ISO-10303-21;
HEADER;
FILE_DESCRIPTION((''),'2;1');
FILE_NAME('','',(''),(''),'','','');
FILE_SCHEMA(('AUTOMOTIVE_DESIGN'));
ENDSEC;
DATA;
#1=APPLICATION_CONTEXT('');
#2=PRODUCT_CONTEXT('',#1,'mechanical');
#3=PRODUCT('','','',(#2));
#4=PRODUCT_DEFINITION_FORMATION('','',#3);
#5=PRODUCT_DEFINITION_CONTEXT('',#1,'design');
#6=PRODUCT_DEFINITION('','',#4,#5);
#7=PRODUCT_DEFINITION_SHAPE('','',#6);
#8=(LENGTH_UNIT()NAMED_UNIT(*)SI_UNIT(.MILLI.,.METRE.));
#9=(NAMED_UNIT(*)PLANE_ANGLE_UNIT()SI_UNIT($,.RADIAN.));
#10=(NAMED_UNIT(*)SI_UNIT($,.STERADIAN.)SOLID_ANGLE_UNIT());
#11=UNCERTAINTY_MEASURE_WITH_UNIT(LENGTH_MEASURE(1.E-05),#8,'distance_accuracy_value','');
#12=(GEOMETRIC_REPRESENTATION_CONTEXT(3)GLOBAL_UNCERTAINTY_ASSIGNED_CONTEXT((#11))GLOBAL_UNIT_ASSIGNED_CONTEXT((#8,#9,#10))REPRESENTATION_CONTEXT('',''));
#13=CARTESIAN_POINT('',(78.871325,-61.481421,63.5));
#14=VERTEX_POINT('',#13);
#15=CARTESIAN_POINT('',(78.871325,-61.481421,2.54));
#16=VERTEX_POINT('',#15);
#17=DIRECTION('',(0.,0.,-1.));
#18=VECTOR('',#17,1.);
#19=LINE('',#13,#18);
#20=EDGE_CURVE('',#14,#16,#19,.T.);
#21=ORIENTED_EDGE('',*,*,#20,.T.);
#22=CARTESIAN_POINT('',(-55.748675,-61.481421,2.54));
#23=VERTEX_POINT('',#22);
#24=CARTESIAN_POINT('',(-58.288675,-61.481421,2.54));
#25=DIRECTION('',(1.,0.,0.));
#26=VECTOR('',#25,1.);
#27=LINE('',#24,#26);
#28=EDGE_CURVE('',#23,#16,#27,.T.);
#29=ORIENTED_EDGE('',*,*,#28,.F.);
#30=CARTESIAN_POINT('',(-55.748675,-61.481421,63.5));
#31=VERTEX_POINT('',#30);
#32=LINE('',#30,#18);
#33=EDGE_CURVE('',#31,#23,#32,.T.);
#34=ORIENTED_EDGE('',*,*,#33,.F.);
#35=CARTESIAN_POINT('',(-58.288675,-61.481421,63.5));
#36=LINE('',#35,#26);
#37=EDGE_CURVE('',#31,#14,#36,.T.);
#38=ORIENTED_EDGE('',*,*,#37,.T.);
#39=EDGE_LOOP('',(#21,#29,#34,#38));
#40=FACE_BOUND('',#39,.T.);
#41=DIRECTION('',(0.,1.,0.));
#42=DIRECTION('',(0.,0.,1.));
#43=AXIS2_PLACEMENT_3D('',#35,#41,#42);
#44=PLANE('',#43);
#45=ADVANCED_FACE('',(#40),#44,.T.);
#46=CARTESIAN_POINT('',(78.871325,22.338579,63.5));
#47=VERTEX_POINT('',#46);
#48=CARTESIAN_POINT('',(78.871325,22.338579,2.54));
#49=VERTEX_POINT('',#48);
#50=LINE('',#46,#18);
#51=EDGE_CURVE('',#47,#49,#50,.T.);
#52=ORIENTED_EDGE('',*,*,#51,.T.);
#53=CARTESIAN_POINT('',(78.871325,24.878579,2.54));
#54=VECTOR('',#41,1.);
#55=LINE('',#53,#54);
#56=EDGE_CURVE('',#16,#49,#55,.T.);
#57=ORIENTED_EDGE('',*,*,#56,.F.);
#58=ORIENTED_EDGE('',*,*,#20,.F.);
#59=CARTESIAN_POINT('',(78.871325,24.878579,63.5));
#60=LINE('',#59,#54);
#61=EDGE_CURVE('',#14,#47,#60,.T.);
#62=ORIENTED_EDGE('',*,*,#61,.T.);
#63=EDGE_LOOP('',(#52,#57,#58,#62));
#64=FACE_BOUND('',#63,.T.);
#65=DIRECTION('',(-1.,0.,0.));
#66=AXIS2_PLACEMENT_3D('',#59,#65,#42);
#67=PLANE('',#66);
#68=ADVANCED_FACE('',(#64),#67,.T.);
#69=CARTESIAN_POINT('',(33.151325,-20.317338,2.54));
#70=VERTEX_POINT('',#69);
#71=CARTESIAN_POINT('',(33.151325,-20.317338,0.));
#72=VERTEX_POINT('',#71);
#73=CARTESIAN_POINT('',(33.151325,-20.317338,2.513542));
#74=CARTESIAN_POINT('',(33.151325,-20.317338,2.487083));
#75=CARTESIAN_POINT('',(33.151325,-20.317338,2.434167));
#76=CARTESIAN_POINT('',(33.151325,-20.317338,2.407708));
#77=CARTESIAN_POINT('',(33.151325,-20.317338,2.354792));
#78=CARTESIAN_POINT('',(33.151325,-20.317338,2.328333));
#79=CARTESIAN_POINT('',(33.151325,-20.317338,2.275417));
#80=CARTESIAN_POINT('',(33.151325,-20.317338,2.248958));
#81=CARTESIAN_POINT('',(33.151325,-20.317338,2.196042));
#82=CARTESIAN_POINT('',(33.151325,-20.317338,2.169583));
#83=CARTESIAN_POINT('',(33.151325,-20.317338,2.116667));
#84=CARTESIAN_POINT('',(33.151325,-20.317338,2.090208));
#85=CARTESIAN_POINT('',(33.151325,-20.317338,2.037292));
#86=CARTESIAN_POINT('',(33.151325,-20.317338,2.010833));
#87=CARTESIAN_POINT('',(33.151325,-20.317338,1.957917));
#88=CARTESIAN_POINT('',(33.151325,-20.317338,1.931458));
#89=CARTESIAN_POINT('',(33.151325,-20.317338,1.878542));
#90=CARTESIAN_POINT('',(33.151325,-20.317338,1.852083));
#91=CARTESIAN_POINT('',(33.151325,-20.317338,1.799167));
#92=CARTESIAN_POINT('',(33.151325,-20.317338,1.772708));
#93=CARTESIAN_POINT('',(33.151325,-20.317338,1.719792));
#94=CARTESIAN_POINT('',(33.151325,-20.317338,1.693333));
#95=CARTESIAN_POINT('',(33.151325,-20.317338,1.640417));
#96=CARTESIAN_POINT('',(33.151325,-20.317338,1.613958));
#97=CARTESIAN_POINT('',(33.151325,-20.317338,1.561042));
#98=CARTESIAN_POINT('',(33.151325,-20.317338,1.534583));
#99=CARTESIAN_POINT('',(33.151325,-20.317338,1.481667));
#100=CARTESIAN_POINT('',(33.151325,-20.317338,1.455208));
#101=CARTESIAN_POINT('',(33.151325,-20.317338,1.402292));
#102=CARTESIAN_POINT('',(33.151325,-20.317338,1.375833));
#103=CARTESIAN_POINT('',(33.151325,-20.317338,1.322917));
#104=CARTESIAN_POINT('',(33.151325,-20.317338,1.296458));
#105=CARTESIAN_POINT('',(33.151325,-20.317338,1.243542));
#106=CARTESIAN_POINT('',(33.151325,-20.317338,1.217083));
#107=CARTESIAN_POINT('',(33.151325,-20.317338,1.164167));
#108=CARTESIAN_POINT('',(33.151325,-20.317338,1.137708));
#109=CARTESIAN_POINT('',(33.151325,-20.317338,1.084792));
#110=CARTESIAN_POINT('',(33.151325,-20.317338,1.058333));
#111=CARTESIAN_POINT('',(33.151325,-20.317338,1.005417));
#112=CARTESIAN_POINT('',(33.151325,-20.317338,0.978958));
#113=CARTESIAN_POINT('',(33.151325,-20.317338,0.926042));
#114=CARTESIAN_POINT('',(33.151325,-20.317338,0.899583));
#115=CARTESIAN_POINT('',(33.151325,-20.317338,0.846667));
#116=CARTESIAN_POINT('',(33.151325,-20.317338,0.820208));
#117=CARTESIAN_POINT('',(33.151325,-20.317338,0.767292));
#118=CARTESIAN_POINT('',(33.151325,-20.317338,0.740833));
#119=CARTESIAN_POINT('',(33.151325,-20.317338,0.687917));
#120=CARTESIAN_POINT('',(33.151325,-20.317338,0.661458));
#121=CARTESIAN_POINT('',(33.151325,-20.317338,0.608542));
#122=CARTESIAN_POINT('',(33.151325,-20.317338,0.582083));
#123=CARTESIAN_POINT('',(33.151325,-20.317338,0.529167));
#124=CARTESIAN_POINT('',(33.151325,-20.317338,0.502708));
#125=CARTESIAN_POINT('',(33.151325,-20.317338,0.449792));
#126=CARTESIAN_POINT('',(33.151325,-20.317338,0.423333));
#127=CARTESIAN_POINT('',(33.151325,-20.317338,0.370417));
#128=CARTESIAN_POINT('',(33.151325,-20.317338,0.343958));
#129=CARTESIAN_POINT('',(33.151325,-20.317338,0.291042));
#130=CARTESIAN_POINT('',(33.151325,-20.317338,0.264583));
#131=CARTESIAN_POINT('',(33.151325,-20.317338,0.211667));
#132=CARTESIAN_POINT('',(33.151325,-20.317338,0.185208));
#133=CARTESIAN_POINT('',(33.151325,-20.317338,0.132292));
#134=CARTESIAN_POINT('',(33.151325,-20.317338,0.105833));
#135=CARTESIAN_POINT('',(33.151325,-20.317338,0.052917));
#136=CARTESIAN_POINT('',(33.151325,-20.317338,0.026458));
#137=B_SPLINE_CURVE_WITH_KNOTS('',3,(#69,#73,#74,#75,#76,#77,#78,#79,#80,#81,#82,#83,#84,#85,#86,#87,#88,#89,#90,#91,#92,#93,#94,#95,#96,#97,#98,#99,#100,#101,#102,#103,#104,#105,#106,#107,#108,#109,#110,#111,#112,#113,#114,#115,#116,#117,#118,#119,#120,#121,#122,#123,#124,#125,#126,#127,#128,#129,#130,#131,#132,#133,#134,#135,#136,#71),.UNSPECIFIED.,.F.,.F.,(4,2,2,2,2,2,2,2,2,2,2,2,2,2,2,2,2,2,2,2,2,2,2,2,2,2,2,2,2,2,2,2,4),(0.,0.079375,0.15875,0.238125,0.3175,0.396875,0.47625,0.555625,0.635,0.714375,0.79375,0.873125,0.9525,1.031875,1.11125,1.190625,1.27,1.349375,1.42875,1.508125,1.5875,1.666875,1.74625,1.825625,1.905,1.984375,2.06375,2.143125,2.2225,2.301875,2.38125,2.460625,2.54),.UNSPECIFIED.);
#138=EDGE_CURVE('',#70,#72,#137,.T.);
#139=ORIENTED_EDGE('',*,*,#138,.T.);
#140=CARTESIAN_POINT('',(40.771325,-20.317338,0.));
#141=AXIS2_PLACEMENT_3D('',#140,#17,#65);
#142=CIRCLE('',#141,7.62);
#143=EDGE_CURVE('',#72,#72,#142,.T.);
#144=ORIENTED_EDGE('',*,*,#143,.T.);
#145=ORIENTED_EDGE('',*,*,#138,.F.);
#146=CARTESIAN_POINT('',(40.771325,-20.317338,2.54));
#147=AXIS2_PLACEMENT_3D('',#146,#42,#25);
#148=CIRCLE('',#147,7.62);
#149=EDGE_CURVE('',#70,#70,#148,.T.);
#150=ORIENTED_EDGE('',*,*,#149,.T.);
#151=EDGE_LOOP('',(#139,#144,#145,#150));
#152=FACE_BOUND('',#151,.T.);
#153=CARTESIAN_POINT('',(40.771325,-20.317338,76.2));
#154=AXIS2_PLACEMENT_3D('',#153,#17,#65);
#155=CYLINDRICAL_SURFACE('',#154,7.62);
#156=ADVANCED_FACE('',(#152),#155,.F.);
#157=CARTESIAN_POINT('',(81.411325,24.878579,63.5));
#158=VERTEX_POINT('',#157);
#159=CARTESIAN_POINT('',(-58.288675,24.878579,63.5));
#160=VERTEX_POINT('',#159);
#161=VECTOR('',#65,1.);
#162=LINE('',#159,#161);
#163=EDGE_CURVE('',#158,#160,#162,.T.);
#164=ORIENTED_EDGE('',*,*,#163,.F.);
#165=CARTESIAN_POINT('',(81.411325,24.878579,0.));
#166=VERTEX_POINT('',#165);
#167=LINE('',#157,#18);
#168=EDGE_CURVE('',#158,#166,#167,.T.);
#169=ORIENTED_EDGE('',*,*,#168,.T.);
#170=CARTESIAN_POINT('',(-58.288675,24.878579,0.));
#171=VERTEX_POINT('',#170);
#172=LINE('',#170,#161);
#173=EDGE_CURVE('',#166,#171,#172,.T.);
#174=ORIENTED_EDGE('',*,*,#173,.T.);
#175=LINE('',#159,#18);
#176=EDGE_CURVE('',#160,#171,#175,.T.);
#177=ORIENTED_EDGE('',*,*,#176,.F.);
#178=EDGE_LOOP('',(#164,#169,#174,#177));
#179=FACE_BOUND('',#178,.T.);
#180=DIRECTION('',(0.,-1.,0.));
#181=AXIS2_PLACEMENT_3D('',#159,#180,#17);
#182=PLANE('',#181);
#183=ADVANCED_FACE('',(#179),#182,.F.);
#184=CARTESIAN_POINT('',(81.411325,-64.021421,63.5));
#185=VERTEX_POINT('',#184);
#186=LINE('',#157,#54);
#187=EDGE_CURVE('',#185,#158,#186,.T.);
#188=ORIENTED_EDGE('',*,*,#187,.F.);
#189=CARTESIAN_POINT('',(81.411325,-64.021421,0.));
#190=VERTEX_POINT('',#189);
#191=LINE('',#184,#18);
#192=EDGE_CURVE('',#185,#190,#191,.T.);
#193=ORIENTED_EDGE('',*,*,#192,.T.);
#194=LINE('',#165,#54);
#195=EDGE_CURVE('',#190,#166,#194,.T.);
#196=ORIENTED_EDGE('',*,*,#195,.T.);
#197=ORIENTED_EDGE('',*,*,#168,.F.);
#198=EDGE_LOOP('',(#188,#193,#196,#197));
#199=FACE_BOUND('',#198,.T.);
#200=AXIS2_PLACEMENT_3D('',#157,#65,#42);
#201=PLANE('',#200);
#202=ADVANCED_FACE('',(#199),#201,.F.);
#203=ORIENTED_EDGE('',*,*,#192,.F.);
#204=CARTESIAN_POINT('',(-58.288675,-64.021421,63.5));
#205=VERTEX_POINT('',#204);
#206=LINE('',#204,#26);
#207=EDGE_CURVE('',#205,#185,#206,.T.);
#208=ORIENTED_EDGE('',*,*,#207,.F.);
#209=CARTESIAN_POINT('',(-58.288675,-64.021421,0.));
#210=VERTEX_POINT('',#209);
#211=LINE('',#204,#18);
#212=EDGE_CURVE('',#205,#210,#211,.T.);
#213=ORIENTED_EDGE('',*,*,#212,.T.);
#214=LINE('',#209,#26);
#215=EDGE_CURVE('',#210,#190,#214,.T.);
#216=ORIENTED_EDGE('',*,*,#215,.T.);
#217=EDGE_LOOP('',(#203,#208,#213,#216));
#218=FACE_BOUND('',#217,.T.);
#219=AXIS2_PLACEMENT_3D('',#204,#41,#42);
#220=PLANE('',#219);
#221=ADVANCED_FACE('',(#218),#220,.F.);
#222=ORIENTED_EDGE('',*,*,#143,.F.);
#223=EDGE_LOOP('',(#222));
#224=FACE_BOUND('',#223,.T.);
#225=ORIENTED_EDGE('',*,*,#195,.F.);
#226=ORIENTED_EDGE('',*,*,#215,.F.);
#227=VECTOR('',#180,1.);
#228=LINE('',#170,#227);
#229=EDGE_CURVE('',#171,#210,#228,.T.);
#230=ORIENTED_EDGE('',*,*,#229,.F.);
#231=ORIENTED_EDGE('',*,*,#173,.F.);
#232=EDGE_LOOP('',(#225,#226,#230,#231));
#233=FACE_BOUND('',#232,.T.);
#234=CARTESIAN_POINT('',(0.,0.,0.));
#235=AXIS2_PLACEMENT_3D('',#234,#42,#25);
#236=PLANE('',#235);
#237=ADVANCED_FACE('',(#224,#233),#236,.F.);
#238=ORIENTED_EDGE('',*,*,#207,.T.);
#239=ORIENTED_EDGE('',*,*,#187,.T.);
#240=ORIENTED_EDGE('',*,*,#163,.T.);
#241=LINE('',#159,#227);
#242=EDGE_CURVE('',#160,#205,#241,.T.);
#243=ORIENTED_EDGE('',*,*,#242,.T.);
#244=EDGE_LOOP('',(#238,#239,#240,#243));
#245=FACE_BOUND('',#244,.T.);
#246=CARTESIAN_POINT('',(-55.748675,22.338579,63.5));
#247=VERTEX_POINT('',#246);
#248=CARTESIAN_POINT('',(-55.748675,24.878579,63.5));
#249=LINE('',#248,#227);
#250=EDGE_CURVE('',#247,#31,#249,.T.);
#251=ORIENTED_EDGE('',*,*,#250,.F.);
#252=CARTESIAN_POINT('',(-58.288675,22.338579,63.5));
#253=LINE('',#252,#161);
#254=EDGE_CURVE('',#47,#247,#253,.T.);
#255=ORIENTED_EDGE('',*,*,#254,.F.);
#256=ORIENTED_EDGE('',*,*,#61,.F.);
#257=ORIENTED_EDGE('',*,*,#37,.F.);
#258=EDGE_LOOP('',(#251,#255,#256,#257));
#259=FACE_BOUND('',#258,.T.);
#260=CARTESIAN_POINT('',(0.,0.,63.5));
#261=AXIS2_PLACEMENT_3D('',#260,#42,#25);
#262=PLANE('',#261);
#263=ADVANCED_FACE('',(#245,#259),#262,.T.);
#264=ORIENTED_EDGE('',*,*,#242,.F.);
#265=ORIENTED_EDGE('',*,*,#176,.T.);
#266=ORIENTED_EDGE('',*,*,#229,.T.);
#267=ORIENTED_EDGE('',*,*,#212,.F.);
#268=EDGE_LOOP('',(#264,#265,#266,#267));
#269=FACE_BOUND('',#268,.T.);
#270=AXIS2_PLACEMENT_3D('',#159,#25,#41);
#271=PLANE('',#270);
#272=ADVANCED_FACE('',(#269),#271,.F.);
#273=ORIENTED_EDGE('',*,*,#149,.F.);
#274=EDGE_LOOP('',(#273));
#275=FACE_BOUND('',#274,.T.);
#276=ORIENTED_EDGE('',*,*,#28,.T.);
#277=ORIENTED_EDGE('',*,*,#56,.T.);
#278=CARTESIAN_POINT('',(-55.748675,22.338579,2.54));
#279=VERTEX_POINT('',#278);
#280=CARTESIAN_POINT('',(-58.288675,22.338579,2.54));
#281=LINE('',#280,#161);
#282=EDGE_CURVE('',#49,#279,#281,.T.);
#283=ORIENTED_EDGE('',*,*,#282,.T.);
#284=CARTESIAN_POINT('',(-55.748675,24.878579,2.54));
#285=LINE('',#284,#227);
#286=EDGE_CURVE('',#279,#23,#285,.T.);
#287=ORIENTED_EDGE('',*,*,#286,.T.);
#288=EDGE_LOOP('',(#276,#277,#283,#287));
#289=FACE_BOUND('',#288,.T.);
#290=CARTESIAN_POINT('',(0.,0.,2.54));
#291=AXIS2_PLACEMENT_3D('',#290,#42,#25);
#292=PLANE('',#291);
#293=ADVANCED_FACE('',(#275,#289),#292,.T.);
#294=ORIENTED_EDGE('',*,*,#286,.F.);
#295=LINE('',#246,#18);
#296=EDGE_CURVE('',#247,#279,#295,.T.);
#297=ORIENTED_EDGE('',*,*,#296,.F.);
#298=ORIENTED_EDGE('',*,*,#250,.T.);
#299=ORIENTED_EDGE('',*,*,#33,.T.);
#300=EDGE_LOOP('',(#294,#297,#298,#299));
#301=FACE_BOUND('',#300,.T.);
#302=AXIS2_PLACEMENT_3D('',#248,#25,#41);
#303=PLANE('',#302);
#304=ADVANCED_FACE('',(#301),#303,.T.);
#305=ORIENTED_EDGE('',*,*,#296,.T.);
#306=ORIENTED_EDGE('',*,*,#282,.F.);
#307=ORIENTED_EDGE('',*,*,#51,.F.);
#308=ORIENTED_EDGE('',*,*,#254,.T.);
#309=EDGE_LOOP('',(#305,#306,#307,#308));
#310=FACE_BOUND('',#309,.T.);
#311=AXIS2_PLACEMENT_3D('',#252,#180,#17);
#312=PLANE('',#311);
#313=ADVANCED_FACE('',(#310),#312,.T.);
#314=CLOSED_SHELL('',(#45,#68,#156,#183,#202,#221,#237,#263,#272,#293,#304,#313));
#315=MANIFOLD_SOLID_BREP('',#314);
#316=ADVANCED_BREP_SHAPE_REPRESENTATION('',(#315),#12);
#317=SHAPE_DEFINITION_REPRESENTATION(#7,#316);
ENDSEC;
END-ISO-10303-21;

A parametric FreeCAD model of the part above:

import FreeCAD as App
import Part
import Sketcher
Q = App.Units.Quantity


def faces_at(feature, points):
    """Names of the faces that lie closest to the given points."""
    faces = feature.Shape.Faces
    near = lambda p: min(range(len(faces)), key=lambda i: faces[i].distToShape(Part.Vertex(*p))[0])
    return sorted({f"Face{near(p) + 1}" for p in points})

doc = App.newDocument("Part")
params = doc.addObject("Spreadsheet::Sheet", "Params")
for row, (alias, value) in enumerate([
    ("sketch1_width", "5.5 in"),
    ("sketch1_height", "3.5 in"),
    ("pad1_length", "2.5 in"),
    ("thickness_wall", "0.1 in"),
    ("sketch2_diameter", "0.6 in"),
    ("pocket1_length", "3 in"),
], start=1):
    params.set(f"A{row}", alias)
    params.set(f"B{row}", "=" + value)
    params.setAlias(f"B{row}", alias)

body = doc.addObject("PartDesign::Body", "Body")

# Sketch on XY plane
sketch1 = doc.addObject("Sketcher::SketchObject", "Sketch")
body.addObject(sketch1)
sketch1.AttachmentSupport = (doc.XY_Plane, [""])
sketch1.MapMode = "FlatFace"
sketch1.addGeometry([
    Part.LineSegment(App.Vector(-58.288675, 24.878579, 0), App.Vector(-58.288675, -64.021421, 0)),
    Part.LineSegment(App.Vector(-58.288675, -64.021421, 0), App.Vector(81.411325, -64.021421, 0)),
    Part.LineSegment(App.Vector(81.411325, -64.021421, 0), App.Vector(81.411325, 24.878579, 0)),
    Part.LineSegment(App.Vector(81.411325, 24.878579, 0), App.Vector(-58.288675, 24.878579, 0)),
], False)
sketch1.addConstraint([
    Sketcher.Constraint("Coincident", 0, 2, 1, 1),
    Sketcher.Constraint("Coincident", 1, 2, 2, 1),
    Sketcher.Constraint("Coincident", 2, 2, 3, 1),
    Sketcher.Constraint("Coincident", 3, 2, 0, 1),
    Sketcher.Constraint("Vertical", 0),
    Sketcher.Constraint("Horizontal", 1),
    Sketcher.Constraint("Vertical", 2),
    Sketcher.Constraint("Horizontal", 3),
    Sketcher.Constraint("DistanceX", 1, 1, 1, 2, Q("5.5 in")),
    Sketcher.Constraint("DistanceY", 0, 2, 0, 1, Q("3.5 in")),
    Sketcher.Constraint("DistanceY", 0, 2, -1, 1, Q("64.021421 mm")),
    Sketcher.Constraint("DistanceX", 0, 2, -1, 1, Q("58.288675 mm")),
])
sketch1.setExpression("Constraints[8]", "Params.sketch1_width")
sketch1.setExpression("Constraints[9]", "Params.sketch1_height")
pad1 = doc.addObject("PartDesign::Pad", "Pad")
body.addObject(pad1)
pad1.Profile = sketch1
pad1.setExpression("Length", "Params.pad1_length")
doc.recompute()

thickness = doc.addObject("PartDesign::Thickness", "Thickness")
body.addObject(thickness)
thickness.Base = (pad1, faces_at(pad1, [(11.561, -19.571, 63.5)]))
thickness.setExpression("Value", "Params.thickness_wall")
thickness.Reversed = True
thickness.Join = "Intersection"

# Sketch on XY plane
sketch2 = doc.addObject("Sketcher::SketchObject", "Sketch001")
body.addObject(sketch2)
sketch2.AttachmentSupport = (doc.XY_Plane, [""])
sketch2.MapMode = "FlatFace"
sketch2.addGeometry(Part.Circle(App.Vector(40.771325, -20.317338, 0), App.Vector(0, 0, 1), 7.62), False)
sketch2.addConstraint([
    Sketcher.Constraint("Diameter", 0, Q("0.6 in")),
    Sketcher.Constraint("DistanceY", 0, 3, -1, 1, Q("20.317338 mm")),
    Sketcher.Constraint("DistanceX", -1, 1, 0, 3, Q("40.771325 mm")),
])
sketch2.setExpression("Constraints[0]", "Params.sketch2_diameter")
pocket1 = doc.addObject("PartDesign::Pocket", "Pocket")
body.addObject(pocket1)
pocket1.Profile = sketch2
pocket1.setExpression("Length", "Params.pocket1_length")
pocket1.Reversed = True

doc.recompute()
